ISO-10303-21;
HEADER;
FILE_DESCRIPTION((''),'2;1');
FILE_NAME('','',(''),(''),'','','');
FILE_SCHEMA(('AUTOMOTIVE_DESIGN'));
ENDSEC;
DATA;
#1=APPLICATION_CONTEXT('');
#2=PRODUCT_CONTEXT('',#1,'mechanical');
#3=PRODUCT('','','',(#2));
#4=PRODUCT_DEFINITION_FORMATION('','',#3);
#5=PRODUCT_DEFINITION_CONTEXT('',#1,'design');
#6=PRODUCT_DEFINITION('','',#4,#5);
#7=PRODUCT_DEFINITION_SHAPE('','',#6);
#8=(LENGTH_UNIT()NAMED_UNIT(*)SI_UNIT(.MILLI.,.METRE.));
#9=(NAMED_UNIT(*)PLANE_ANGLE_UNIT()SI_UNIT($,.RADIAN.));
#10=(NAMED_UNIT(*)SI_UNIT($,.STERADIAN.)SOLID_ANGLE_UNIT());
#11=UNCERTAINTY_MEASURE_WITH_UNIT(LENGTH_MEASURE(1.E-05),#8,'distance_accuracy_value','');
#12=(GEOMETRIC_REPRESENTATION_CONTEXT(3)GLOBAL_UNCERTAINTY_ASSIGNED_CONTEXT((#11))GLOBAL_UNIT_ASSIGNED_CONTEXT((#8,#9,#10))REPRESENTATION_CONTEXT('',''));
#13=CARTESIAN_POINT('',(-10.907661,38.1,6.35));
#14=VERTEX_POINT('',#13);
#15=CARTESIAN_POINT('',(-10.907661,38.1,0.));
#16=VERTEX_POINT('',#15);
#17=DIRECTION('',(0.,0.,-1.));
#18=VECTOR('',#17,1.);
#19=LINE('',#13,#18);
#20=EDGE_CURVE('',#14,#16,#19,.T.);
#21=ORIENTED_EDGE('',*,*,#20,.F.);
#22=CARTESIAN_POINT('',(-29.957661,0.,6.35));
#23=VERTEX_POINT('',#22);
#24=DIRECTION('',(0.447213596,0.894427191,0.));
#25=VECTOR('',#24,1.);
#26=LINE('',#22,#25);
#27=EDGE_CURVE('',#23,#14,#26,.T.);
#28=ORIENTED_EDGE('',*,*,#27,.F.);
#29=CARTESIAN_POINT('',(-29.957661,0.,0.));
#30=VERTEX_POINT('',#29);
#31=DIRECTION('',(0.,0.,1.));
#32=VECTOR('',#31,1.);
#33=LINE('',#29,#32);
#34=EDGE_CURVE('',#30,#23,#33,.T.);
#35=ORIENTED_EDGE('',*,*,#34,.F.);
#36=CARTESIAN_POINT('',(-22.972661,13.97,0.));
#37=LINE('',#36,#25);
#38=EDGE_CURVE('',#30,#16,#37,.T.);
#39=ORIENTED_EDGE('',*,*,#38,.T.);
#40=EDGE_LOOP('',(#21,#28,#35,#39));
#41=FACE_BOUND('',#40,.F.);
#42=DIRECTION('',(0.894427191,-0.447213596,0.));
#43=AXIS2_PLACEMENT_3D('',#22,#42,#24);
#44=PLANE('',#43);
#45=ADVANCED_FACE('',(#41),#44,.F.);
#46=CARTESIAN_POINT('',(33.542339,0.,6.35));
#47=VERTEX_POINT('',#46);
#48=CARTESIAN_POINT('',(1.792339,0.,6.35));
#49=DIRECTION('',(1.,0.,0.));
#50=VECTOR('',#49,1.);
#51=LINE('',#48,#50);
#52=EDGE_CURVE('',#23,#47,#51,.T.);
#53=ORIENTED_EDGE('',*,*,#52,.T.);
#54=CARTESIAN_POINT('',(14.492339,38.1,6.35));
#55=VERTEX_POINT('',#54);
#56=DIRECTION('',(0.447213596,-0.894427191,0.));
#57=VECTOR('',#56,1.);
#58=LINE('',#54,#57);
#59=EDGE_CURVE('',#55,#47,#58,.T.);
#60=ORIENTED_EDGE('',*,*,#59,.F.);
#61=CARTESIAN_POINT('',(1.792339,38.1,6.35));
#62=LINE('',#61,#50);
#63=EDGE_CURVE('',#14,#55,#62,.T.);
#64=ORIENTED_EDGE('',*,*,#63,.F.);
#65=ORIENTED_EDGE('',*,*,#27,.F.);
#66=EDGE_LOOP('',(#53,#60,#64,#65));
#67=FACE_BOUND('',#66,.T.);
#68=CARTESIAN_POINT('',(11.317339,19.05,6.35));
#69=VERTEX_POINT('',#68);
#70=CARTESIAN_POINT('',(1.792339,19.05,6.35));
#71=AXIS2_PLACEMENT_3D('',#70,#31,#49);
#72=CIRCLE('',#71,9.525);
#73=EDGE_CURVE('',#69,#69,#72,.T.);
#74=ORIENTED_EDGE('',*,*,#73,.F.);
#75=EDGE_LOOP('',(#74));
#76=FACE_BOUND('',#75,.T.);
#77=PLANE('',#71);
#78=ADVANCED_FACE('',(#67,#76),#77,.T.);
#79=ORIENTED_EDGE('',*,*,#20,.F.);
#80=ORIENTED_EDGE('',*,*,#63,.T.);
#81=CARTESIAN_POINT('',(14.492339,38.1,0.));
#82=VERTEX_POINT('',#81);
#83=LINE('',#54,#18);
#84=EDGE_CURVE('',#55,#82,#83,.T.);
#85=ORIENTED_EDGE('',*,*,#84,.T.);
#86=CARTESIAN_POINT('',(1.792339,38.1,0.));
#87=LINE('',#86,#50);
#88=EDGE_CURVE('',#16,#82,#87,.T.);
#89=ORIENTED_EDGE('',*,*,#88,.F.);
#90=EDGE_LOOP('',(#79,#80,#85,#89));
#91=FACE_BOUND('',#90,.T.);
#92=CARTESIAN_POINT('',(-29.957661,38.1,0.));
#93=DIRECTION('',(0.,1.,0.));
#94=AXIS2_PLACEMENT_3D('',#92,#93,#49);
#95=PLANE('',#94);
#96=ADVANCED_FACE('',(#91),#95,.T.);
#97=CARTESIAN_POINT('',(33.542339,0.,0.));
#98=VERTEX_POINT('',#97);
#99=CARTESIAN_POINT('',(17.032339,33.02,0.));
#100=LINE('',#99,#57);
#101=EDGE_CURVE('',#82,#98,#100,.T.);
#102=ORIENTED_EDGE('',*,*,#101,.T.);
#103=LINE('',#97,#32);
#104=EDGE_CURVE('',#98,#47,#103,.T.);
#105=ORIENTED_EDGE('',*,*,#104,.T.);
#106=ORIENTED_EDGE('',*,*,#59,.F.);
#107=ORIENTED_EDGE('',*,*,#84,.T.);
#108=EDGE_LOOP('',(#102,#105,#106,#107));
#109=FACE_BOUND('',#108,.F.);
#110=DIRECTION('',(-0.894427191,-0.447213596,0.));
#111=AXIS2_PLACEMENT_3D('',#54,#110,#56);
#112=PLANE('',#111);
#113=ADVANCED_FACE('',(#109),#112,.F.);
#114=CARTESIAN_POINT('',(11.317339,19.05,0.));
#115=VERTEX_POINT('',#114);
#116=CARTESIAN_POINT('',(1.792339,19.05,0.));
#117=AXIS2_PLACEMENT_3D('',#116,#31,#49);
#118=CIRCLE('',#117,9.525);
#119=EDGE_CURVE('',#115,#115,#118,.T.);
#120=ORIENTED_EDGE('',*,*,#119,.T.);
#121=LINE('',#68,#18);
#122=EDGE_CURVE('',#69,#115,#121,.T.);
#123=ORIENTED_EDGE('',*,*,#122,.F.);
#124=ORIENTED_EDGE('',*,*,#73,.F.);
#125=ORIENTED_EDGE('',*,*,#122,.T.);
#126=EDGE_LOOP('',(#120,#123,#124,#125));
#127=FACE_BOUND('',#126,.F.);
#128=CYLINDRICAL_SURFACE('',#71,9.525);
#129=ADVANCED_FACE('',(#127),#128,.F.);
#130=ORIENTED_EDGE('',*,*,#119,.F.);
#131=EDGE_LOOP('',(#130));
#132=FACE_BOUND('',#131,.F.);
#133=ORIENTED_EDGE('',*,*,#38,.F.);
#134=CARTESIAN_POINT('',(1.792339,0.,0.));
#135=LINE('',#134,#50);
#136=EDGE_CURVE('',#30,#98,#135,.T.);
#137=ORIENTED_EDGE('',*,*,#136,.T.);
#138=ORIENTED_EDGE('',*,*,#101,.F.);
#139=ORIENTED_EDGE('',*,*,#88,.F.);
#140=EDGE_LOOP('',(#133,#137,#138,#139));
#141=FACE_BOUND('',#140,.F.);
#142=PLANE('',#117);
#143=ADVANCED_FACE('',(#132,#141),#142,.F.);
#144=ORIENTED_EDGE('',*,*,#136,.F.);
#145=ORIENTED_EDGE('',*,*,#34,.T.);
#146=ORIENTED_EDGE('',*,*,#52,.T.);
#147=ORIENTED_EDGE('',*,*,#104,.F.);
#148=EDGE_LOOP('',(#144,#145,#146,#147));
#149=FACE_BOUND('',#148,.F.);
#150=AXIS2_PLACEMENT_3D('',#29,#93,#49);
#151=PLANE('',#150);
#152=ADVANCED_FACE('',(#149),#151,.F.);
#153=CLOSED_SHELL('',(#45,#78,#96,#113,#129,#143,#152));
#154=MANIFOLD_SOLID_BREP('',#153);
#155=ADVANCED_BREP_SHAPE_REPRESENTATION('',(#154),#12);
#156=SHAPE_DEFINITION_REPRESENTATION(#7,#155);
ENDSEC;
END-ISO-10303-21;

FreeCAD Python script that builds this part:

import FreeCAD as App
import Part
import Sketcher

V = App.Vector
Q = App.Units.Quantity

doc = App.newDocument("Part")
body = doc.addObject("PartDesign::Body", "Body")

# Sketch on XY plane
sketch1 = body.newObject("Sketcher::SketchObject", "Sketch")
sketch1.AttachmentSupport = (doc.getObject("XY_Plane"), [""])
sketch1.MapMode = "FlatFace"
sketch1.addGeometry(Part.LineSegment(V(-30, 38, 0), V(-30, 0, 0)), False)
sketch1.addGeometry(Part.LineSegment(V(-30, 0, 0), V(34, 0, 0)), False)
sketch1.addGeometry(Part.LineSegment(V(34, 0, 0), V(34, 38, 0)), False)
sketch1.addGeometry(Part.LineSegment(V(34, 38, 0), V(-30, 38, 0)), False)
sketch1.addConstraint(Sketcher.Constraint("Coincident", 0, 2, 1, 1))
sketch1.addConstraint(Sketcher.Constraint("Coincident", 1, 2, 2, 1))
sketch1.addConstraint(Sketcher.Constraint("Coincident", 2, 2, 3, 1))
sketch1.addConstraint(Sketcher.Constraint("Coincident", 3, 2, 0, 1))
sketch1.addConstraint(Sketcher.Constraint("Vertical", 0))
sketch1.addConstraint(Sketcher.Constraint("Horizontal", 1))
sketch1.addConstraint(Sketcher.Constraint("Vertical", 2))
sketch1.addConstraint(Sketcher.Constraint("Horizontal", 3))
sketch1.addConstraint(Sketcher.Constraint("PointOnObject", 0, 2, -1))
sketch1.addConstraint(Sketcher.Constraint("DistanceX", 1, 1, 1, 2, Q("2.5 in")))
sketch1.addConstraint(Sketcher.Constraint("DistanceY", 0, 2, 0, 1, Q("1.5 in")))
sketch1.addConstraint(Sketcher.Constraint("DistanceX", 0, 2, -1, 1, Q("29.957661 mm")))
pad1 = body.newObject("PartDesign::Pad", "Pad")
pad1.Profile = sketch1
pad1.Length = Q("0.25 in")

# Sketch on XY plane
sketch2 = body.newObject("Sketcher::SketchObject", "Sketch001")
sketch2.AttachmentSupport = (doc.getObject("XY_Plane"), [""])
sketch2.MapMode = "FlatFace"
sketch2.AttachmentOffset = App.Placement(V(0, 0, 0.25 * 25.4), App.Rotation())
sketch2.addGeometry(Part.LineSegment(V(-30, 0, 0), V(-11, 38, 0)), False)
sketch2.addGeometry(Part.LineSegment(V(-11, 38, 0), V(-30, 38, 0)), False)
sketch2.addGeometry(Part.LineSegment(V(-30, 38, 0), V(-30, 0, 0)), False)
sketch2.addGeometry(Part.LineSegment(V(34, 38, 0), V(14, 38, 0)), False)
sketch2.addGeometry(Part.LineSegment(V(14, 38, 0), V(34, 0, 0)), False)
sketch2.addGeometry(Part.LineSegment(V(34, 0, 0), V(34, 38, 0)), False)
sketch2.addGeometry(Part.Circle(V(2, 19, 0), V(0, 0, 1), 10), False)
sketch2.addConstraint(Sketcher.Constraint("Coincident", 0, 2, 1, 1))
sketch2.addConstraint(Sketcher.Constraint("Coincident", 1, 2, 2, 1))
sketch2.addConstraint(Sketcher.Constraint("Coincident", 2, 2, 0, 1))
sketch2.addConstraint(Sketcher.Constraint("Coincident", 3, 2, 4, 1))
sketch2.addConstraint(Sketcher.Constraint("Coincident", 4, 2, 5, 1))
sketch2.addConstraint(Sketcher.Constraint("Coincident", 5, 2, 3, 1))
sketch2.addConstraint(Sketcher.Constraint("Horizontal", 1))
sketch2.addConstraint(Sketcher.Constraint("Vertical", 2))
sketch2.addConstraint(Sketcher.Constraint("Horizontal", 3))
sketch2.addConstraint(Sketcher.Constraint("Vertical", 5))
sketch2.addConstraint(Sketcher.Constraint("PointOnObject", 2, 2, -1))
sketch2.addConstraint(Sketcher.Constraint("PointOnObject", 4, 2, -1))
sketch2.addConstraint(Sketcher.Constraint("Horizontal", 1, 2, 3, 2))
sketch2.addConstraint(Sketcher.Constraint("Equal", 1, 3))
sketch2.addConstraint(Sketcher.Constraint("Diameter", 6, Q("0.75 in")))
sketch2.addConstraint(Sketcher.Constraint("DistanceY", 2, 2, 2, 1, Q("1.5 in")))
sketch2.addConstraint(Sketcher.Constraint("DistanceX", 0, 2, 3, 2, Q("1 in")))
sketch2.addConstraint(Sketcher.Constraint("DistanceX", 1, 2, 1, 1, Q("0.75 in")))
sketch2.addConstraint(Sketcher.Constraint("DistanceX", 0, 2, 6, 3, Q("0.5 in")))
sketch2.addConstraint(Sketcher.Constraint("DistanceY", -1, 1, 6, 3, Q("0.75 in")))
sketch2.addConstraint(Sketcher.Constraint("DistanceX", -1, 1, 6, 3, Q("1.792339 mm")))
pocket1 = body.newObject("PartDesign::Pocket", "Pocket")
pocket1.Profile = sketch2
pocket1.Length = Q("1 in")

doc.recompute()
